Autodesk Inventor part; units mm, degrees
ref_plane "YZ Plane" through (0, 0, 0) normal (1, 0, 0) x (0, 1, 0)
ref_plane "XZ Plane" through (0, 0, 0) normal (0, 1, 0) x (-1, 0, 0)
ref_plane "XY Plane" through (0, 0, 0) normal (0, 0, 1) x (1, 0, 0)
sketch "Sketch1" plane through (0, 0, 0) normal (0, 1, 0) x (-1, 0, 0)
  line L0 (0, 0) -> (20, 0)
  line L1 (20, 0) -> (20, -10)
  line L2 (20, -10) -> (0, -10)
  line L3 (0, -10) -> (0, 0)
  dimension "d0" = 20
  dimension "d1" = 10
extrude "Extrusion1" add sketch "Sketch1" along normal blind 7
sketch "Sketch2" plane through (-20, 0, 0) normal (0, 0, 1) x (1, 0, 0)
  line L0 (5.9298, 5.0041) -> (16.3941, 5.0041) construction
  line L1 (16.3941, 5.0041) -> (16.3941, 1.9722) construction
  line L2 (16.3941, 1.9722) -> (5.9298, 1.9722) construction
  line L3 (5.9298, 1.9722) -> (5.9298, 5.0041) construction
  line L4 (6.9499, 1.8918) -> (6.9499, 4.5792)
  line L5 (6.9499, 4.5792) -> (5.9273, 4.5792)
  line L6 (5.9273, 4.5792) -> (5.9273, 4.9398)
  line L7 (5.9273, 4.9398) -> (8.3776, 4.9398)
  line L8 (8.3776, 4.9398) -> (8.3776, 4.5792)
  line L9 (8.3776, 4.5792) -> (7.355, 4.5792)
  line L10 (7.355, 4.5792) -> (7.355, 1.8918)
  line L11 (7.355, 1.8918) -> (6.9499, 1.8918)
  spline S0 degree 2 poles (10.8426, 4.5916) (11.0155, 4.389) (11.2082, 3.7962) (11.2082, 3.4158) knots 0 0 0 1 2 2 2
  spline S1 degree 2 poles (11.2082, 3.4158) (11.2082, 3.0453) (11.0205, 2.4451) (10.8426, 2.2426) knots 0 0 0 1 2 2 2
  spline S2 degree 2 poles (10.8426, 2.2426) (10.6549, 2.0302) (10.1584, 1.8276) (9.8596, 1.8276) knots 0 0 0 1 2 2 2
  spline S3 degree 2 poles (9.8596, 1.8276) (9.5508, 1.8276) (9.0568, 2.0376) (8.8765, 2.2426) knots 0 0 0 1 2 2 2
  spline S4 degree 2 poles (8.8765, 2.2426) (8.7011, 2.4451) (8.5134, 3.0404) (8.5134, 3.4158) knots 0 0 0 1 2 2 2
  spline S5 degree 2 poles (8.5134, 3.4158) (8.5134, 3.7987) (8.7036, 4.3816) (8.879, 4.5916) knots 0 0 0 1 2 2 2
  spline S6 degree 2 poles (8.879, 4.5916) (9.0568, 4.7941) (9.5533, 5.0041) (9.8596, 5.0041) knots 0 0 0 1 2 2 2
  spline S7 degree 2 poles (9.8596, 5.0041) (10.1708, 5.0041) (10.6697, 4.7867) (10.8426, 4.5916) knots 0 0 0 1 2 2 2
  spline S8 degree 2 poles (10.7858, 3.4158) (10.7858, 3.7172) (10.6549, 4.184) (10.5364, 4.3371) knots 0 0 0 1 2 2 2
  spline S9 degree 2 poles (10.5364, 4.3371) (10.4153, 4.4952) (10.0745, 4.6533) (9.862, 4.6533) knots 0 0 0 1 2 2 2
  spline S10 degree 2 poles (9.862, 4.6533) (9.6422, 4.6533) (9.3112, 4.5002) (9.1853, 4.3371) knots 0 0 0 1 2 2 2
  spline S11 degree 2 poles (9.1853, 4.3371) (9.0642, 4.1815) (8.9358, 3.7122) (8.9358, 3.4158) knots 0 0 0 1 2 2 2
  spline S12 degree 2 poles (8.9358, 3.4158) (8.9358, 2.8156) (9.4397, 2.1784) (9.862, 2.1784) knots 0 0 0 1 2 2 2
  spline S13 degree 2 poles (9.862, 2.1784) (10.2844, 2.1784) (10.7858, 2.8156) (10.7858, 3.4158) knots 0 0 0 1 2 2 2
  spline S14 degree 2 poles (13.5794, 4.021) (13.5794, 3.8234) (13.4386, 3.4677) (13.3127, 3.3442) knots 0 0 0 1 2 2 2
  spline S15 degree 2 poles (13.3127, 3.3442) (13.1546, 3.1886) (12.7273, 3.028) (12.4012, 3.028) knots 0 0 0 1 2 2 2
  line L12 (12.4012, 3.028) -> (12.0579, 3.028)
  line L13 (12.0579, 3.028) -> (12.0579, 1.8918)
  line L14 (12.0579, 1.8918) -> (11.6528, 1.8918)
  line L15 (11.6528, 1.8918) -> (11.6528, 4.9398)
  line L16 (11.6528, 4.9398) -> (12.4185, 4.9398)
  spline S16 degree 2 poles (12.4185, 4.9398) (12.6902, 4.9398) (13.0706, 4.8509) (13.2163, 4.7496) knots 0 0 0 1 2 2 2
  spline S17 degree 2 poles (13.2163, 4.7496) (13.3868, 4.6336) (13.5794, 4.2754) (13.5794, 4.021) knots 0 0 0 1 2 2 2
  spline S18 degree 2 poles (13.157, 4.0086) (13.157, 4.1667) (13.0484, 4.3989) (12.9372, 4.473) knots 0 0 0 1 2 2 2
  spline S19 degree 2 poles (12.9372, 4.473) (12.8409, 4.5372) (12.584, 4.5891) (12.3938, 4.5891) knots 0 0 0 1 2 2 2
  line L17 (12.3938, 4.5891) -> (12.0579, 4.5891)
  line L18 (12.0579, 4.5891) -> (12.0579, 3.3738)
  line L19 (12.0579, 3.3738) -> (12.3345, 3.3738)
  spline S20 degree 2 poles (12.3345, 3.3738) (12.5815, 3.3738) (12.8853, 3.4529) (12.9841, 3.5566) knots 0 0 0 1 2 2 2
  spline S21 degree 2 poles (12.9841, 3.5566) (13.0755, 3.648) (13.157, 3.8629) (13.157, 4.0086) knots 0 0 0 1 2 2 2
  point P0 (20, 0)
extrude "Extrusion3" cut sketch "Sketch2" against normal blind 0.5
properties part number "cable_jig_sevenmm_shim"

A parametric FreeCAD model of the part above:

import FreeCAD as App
import Part
import Sketcher
from FreeCAD import Vector

doc = App.newDocument("Part")
body = doc.addObject("PartDesign::Body", "Body")

sketch1 = doc.addObject("Sketcher::SketchObject", "Sketch")
body.addObject(sketch1)
sketch1.AttachmentSupport = (doc.XZ_Plane, [""])
sketch1.MapMode = "FlatFace"
sketch1.addGeometry([
    Part.LineSegment(Vector(-20, 0, 0), Vector(0, 0, 0)),
    Part.LineSegment(Vector(0, 0, 0), Vector(0, -10, 0)),
    Part.LineSegment(Vector(0, -10, 0), Vector(-20, -10, 0)),
    Part.LineSegment(Vector(-20, -10, 0), Vector(-20, 0, 0)),
], False)
sketch1.addConstraint([
    Sketcher.Constraint("Coincident", 0, 2, 1, 1),
    Sketcher.Constraint("Coincident", 1, 2, 2, 1),
    Sketcher.Constraint("Coincident", 2, 2, 3, 1),
    Sketcher.Constraint("Coincident", 3, 2, 0, 1),
    Sketcher.Constraint("Horizontal", 0),
    Sketcher.Constraint("Vertical", 1),
    Sketcher.Constraint("Horizontal", 2),
    Sketcher.Constraint("Vertical", 3),
    Sketcher.Constraint("Coincident", 0, 2, -1, 1),
    Sketcher.Constraint("DistanceX", 0, 1, 0, 2, 20.0),
    Sketcher.Constraint("DistanceY", 1, 2, 1, 1, 10.0),
])
pad1 = doc.addObject("PartDesign::Pad", "Pad")
body.addObject(pad1)
pad1.Profile = sketch1
pad1.Length = 7
pad1.Reversed = True

sketch2 = doc.addObject("Sketcher::SketchObject", "Sketch001")
body.addObject(sketch2)
sketch2.AttachmentSupport = (doc.XY_Plane, [""])
sketch2.MapMode = "FlatFace"
sketch2.addGeometry([
    Part.LineSegment(Vector(-13.0501, 4.5792, 0), Vector(-13.0501, 1.8918, 0)),
    Part.LineSegment(Vector(-13.0501, 1.8918, 0), Vector(-12.645, 1.8918, 0)),
    Part.LineSegment(Vector(-12.645, 1.8918, 0), Vector(-12.645, 4.5792, 0)),
    Part.LineSegment(Vector(-12.645, 4.5792, 0), Vector(-11.6224, 4.5792, 0)),
    Part.LineSegment(Vector(-11.6224, 4.5792, 0), Vector(-11.6224, 4.9398, 0)),
    Part.LineSegment(Vector(-11.6224, 4.9398, 0), Vector(-14.0727, 4.9398, 0)),
    Part.LineSegment(Vector(-14.0727, 4.9398, 0), Vector(-14.0727, 4.5792, 0)),
    Part.LineSegment(Vector(-14.0727, 4.5792, 0), Vector(-13.0501, 4.5792, 0)),
    Part.BSplineCurve([Vector(-9.1574, 4.5916, 0), Vector(-8.9845, 4.389, 0), Vector(-8.7918, 3.7962, 0), Vector(-8.7918, 3.4158, 0)], [3, 1, 3], [0, 1, 2], False, 2, [1, 1, 1, 1], False),
    Part.BSplineCurve([Vector(-10.1404, 5.0041, 0), Vector(-9.8292, 5.0041, 0), Vector(-9.3303, 4.7867, 0), Vector(-9.1574, 4.5916, 0)], [3, 1, 3], [0, 1, 2], False, 2, [1, 1, 1, 1], False),
    Part.BSplineCurve([Vector(-11.121, 4.5916, 0), Vector(-10.9432, 4.7941, 0), Vector(-10.4467, 5.0041, 0), Vector(-10.1404, 5.0041, 0)], [3, 1, 3], [0, 1, 2], False, 2, [1, 1, 1, 1], False),
    Part.BSplineCurve([Vector(-11.4866, 3.4158, 0), Vector(-11.4866, 3.7987, 0), Vector(-11.2964, 4.3816, 0), Vector(-11.121, 4.5916, 0)], [3, 1, 3], [0, 1, 2], False, 2, [1, 1, 1, 1], False),
    Part.BSplineCurve([Vector(-11.1235, 2.2426, 0), Vector(-11.2989, 2.4451, 0), Vector(-11.4866, 3.0404, 0), Vector(-11.4866, 3.4158, 0)], [3, 1, 3], [0, 1, 2], False, 2, [1, 1, 1, 1], False),
    Part.BSplineCurve([Vector(-10.1404, 1.8276, 0), Vector(-10.4492, 1.8276, 0), Vector(-10.9432, 2.0376, 0), Vector(-11.1235, 2.2426, 0)], [3, 1, 3], [0, 1, 2], False, 2, [1, 1, 1, 1], False),
    Part.BSplineCurve([Vector(-9.1574, 2.2426, 0), Vector(-9.3451, 2.0302, 0), Vector(-9.8416, 1.8276, 0), Vector(-10.1404, 1.8276, 0)], [3, 1, 3], [0, 1, 2], False, 2, [1, 1, 1, 1], False),
    Part.BSplineCurve([Vector(-8.7918, 3.4158, 0), Vector(-8.7918, 3.0453, 0), Vector(-8.9795, 2.4451, 0), Vector(-9.1574, 2.2426, 0)], [3, 1, 3], [0, 1, 2], False, 2, [1, 1, 1, 1], False),
    Part.BSplineCurve([Vector(-9.2142, 3.4158, 0), Vector(-9.2142, 3.7172, 0), Vector(-9.3451, 4.184, 0), Vector(-9.4636, 4.3371, 0)], [3, 1, 3], [0, 1, 2], False, 2, [1, 1, 1, 1], False),
    Part.BSplineCurve([Vector(-10.138, 2.1784, 0), Vector(-9.7156, 2.1784, 0), Vector(-9.2142, 2.8156, 0), Vector(-9.2142, 3.4158, 0)], [3, 1, 3], [0, 1, 2], False, 2, [1, 1, 1, 1], False),
    Part.BSplineCurve([Vector(-11.0642, 3.4158, 0), Vector(-11.0642, 2.8156, 0), Vector(-10.5603, 2.1784, 0), Vector(-10.138, 2.1784, 0)], [3, 1, 3], [0, 1, 2], False, 2, [1, 1, 1, 1], False),
    Part.BSplineCurve([Vector(-10.8147, 4.3371, 0), Vector(-10.9358, 4.1815, 0), Vector(-11.0642, 3.7122, 0), Vector(-11.0642, 3.4158, 0)], [3, 1, 3], [0, 1, 2], False, 2, [1, 1, 1, 1], False),
    Part.BSplineCurve([Vector(-10.138, 4.6533, 0), Vector(-10.3578, 4.6533, 0), Vector(-10.6888, 4.5002, 0), Vector(-10.8147, 4.3371, 0)], [3, 1, 3], [0, 1, 2], False, 2, [1, 1, 1, 1], False),
    Part.BSplineCurve([Vector(-9.4636, 4.3371, 0), Vector(-9.5847, 4.4952, 0), Vector(-9.9255, 4.6533, 0), Vector(-10.138, 4.6533, 0)], [3, 1, 3], [0, 1, 2], False, 2, [1, 1, 1, 1], False),
    Part.BSplineCurve([Vector(-6.4206, 4.021, 0), Vector(-6.4206, 3.8234, 0), Vector(-6.5614, 3.4677, 0), Vector(-6.6873, 3.3442, 0)], [3, 1, 3], [0, 1, 2], False, 2, [1, 1, 1, 1], False),
    Part.BSplineCurve([Vector(-6.7837, 4.7496, 0), Vector(-6.6132, 4.6336, 0), Vector(-6.4206, 4.2754, 0), Vector(-6.4206, 4.021, 0)], [3, 1, 3], [0, 1, 2], False, 2, [1, 1, 1, 1], False),
    Part.BSplineCurve([Vector(-7.5815, 4.9398, 0), Vector(-7.3098, 4.9398, 0), Vector(-6.9294, 4.8509, 0), Vector(-6.7837, 4.7496, 0)], [3, 1, 3], [0, 1, 2], False, 2, [1, 1, 1, 1], False),
    Part.LineSegment(Vector(-7.5815, 4.9398, 0), Vector(-8.3472, 4.9398, 0)),
    Part.LineSegment(Vector(-8.3472, 4.9398, 0), Vector(-8.3472, 1.8918, 0)),
    Part.LineSegment(Vector(-8.3472, 1.8918, 0), Vector(-7.9421, 1.8918, 0)),
    Part.LineSegment(Vector(-7.9421, 1.8918, 0), Vector(-7.9421, 3.028, 0)),
    Part.LineSegment(Vector(-7.9421, 3.028, 0), Vector(-7.5988, 3.028, 0)),
    Part.BSplineCurve([Vector(-6.6873, 3.3442, 0), Vector(-6.8454, 3.1886, 0), Vector(-7.2727, 3.028, 0), Vector(-7.5988, 3.028, 0)], [3, 1, 3], [0, 1, 2], False, 2, [1, 1, 1, 1], False),
    Part.BSplineCurve([Vector(-6.843, 4.0086, 0), Vector(-6.843, 4.1667, 0), Vector(-6.9516, 4.3989, 0), Vector(-7.0628, 4.473, 0)], [3, 1, 3], [0, 1, 2], False, 2, [1, 1, 1, 1], False),
    Part.BSplineCurve([Vector(-7.0159, 3.5566, 0), Vector(-6.9245, 3.648, 0), Vector(-6.843, 3.8629, 0), Vector(-6.843, 4.0086, 0)], [3, 1, 3], [0, 1, 2], False, 2, [1, 1, 1, 1], False),
    Part.BSplineCurve([Vector(-7.6655, 3.3738, 0), Vector(-7.4185, 3.3738, 0), Vector(-7.1147, 3.4529, 0), Vector(-7.0159, 3.5566, 0)], [3, 1, 3], [0, 1, 2], False, 2, [1, 1, 1, 1], False),
    Part.LineSegment(Vector(-7.6655, 3.3738, 0), Vector(-7.9421, 3.3738, 0)),
    Part.LineSegment(Vector(-7.9421, 3.3738, 0), Vector(-7.9421, 4.5891, 0)),
    Part.LineSegment(Vector(-7.9421, 4.5891, 0), Vector(-7.6062, 4.5891, 0)),
    Part.BSplineCurve([Vector(-7.0628, 4.473, 0), Vector(-7.1591, 4.5372, 0), Vector(-7.416, 4.5891, 0), Vector(-7.6062, 4.5891, 0)], [3, 1, 3], [0, 1, 2], False, 2, [1, 1, 1, 1], False),
], False)
sketch2.addConstraint([
    Sketcher.Constraint("Block", 8),
    Sketcher.Constraint("Block", 9),
    Sketcher.Constraint("Block", 10),
    Sketcher.Constraint("Block", 11),
    Sketcher.Constraint("Block", 12),
    Sketcher.Constraint("Block", 13),
    Sketcher.Constraint("Block", 14),
    Sketcher.Constraint("Block", 15),
    Sketcher.Constraint("Block", 16),
    Sketcher.Constraint("Block", 17),
    Sketcher.Constraint("Block", 18),
    Sketcher.Constraint("Block", 19),
    Sketcher.Constraint("Block", 20),
    Sketcher.Constraint("Block", 21),
    Sketcher.Constraint("Block", 22),
    Sketcher.Constraint("Block", 23),
    Sketcher.Constraint("Block", 24),
    Sketcher.Constraint("Block", 30),
    Sketcher.Constraint("Block", 31),
    Sketcher.Constraint("Block", 32),
    Sketcher.Constraint("Block", 33),
    Sketcher.Constraint("Block", 37),
    Sketcher.Constraint("Coincident", 0, 2, 1, 1),
    Sketcher.Constraint("Coincident", 1, 2, 2, 1),
    Sketcher.Constraint("Coincident", 2, 2, 3, 1),
    Sketcher.Constraint("Coincident", 3, 2, 4, 1),
    Sketcher.Constraint("Coincident", 4, 2, 5, 1),
    Sketcher.Constraint("Coincident", 5, 2, 6, 1),
    Sketcher.Constraint("Coincident", 6, 2, 7, 1),
    Sketcher.Constraint("Coincident", 7, 2, 0, 1),
    Sketcher.Constraint("Coincident", 24, 1, 25, 1),
    Sketcher.Constraint("Coincident", 25, 2, 26, 1),
    Sketcher.Constraint("Coincident", 26, 2, 27, 1),
    Sketcher.Constraint("Coincident", 27, 2, 28, 1),
    Sketcher.Constraint("Coincident", 28, 2, 29, 1),
    Sketcher.Constraint("Coincident", 29, 2, 30, 2),
    Sketcher.Constraint("Coincident", 33, 1, 34, 1),
    Sketcher.Constraint("Coincident", 34, 2, 35, 1),
    Sketcher.Constraint("Coincident", 35, 2, 36, 1),
    Sketcher.Constraint("Coincident", 36, 2, 37, 2),
    Sketcher.Constraint("Vertical", 0),
    Sketcher.Constraint("Horizontal", 1),
    Sketcher.Constraint("Vertical", 2),
    Sketcher.Constraint("Horizontal", 3),
    Sketcher.Constraint("Vertical", 4),
    Sketcher.Constraint("Horizontal", 5),
    Sketcher.Constraint("Vertical", 6),
    Sketcher.Constraint("Horizontal", 7),
    Sketcher.Constraint("Horizontal", 25),
    Sketcher.Constraint("Vertical", 26),
    Sketcher.Constraint("Horizontal", 27),
    Sketcher.Constraint("Vertical", 28),
    Sketcher.Constraint("Horizontal", 29),
    Sketcher.Constraint("Horizontal", 34),
    Sketcher.Constraint("Vertical", 35),
    Sketcher.Constraint("Horizontal", 36),
    Sketcher.Constraint("Horizontal", 3, 2, 6, 2),
    Sketcher.Constraint("Horizontal", 5, 2, 25, 2),
    Sketcher.Constraint("Horizontal", 1, 2, 26, 2),
    Sketcher.Constraint("Vertical", 28, 2, 34, 2),
    Sketcher.Constraint("Equal", 3, 7),
    Sketcher.Constraint("Equal", 1, 27),
    Sketcher.Constraint("DistanceX", 1, 1, 1, 2, 0.405),
    Sketcher.Constraint("DistanceX", 36, 1, 36, 2, 0.336),
    Sketcher.Constraint("DistanceY", 26, 2, 26, 1, 3.048),
    Sketcher.Constraint("DistanceX", 0, 2, -1, 1, 13.05),
    Sketcher.Constraint("DistanceX", 3, 1, 3, 2, 1.0226),
    Sketcher.Constraint("DistanceY", 0, 2, 0, 1, 2.6874),
])
pocket1 = doc.addObject("PartDesign::Pocket", "Pocket")
body.addObject(pocket1)
pocket1.Profile = sketch2
pocket1.Length = 0.5

doc.recompute()
